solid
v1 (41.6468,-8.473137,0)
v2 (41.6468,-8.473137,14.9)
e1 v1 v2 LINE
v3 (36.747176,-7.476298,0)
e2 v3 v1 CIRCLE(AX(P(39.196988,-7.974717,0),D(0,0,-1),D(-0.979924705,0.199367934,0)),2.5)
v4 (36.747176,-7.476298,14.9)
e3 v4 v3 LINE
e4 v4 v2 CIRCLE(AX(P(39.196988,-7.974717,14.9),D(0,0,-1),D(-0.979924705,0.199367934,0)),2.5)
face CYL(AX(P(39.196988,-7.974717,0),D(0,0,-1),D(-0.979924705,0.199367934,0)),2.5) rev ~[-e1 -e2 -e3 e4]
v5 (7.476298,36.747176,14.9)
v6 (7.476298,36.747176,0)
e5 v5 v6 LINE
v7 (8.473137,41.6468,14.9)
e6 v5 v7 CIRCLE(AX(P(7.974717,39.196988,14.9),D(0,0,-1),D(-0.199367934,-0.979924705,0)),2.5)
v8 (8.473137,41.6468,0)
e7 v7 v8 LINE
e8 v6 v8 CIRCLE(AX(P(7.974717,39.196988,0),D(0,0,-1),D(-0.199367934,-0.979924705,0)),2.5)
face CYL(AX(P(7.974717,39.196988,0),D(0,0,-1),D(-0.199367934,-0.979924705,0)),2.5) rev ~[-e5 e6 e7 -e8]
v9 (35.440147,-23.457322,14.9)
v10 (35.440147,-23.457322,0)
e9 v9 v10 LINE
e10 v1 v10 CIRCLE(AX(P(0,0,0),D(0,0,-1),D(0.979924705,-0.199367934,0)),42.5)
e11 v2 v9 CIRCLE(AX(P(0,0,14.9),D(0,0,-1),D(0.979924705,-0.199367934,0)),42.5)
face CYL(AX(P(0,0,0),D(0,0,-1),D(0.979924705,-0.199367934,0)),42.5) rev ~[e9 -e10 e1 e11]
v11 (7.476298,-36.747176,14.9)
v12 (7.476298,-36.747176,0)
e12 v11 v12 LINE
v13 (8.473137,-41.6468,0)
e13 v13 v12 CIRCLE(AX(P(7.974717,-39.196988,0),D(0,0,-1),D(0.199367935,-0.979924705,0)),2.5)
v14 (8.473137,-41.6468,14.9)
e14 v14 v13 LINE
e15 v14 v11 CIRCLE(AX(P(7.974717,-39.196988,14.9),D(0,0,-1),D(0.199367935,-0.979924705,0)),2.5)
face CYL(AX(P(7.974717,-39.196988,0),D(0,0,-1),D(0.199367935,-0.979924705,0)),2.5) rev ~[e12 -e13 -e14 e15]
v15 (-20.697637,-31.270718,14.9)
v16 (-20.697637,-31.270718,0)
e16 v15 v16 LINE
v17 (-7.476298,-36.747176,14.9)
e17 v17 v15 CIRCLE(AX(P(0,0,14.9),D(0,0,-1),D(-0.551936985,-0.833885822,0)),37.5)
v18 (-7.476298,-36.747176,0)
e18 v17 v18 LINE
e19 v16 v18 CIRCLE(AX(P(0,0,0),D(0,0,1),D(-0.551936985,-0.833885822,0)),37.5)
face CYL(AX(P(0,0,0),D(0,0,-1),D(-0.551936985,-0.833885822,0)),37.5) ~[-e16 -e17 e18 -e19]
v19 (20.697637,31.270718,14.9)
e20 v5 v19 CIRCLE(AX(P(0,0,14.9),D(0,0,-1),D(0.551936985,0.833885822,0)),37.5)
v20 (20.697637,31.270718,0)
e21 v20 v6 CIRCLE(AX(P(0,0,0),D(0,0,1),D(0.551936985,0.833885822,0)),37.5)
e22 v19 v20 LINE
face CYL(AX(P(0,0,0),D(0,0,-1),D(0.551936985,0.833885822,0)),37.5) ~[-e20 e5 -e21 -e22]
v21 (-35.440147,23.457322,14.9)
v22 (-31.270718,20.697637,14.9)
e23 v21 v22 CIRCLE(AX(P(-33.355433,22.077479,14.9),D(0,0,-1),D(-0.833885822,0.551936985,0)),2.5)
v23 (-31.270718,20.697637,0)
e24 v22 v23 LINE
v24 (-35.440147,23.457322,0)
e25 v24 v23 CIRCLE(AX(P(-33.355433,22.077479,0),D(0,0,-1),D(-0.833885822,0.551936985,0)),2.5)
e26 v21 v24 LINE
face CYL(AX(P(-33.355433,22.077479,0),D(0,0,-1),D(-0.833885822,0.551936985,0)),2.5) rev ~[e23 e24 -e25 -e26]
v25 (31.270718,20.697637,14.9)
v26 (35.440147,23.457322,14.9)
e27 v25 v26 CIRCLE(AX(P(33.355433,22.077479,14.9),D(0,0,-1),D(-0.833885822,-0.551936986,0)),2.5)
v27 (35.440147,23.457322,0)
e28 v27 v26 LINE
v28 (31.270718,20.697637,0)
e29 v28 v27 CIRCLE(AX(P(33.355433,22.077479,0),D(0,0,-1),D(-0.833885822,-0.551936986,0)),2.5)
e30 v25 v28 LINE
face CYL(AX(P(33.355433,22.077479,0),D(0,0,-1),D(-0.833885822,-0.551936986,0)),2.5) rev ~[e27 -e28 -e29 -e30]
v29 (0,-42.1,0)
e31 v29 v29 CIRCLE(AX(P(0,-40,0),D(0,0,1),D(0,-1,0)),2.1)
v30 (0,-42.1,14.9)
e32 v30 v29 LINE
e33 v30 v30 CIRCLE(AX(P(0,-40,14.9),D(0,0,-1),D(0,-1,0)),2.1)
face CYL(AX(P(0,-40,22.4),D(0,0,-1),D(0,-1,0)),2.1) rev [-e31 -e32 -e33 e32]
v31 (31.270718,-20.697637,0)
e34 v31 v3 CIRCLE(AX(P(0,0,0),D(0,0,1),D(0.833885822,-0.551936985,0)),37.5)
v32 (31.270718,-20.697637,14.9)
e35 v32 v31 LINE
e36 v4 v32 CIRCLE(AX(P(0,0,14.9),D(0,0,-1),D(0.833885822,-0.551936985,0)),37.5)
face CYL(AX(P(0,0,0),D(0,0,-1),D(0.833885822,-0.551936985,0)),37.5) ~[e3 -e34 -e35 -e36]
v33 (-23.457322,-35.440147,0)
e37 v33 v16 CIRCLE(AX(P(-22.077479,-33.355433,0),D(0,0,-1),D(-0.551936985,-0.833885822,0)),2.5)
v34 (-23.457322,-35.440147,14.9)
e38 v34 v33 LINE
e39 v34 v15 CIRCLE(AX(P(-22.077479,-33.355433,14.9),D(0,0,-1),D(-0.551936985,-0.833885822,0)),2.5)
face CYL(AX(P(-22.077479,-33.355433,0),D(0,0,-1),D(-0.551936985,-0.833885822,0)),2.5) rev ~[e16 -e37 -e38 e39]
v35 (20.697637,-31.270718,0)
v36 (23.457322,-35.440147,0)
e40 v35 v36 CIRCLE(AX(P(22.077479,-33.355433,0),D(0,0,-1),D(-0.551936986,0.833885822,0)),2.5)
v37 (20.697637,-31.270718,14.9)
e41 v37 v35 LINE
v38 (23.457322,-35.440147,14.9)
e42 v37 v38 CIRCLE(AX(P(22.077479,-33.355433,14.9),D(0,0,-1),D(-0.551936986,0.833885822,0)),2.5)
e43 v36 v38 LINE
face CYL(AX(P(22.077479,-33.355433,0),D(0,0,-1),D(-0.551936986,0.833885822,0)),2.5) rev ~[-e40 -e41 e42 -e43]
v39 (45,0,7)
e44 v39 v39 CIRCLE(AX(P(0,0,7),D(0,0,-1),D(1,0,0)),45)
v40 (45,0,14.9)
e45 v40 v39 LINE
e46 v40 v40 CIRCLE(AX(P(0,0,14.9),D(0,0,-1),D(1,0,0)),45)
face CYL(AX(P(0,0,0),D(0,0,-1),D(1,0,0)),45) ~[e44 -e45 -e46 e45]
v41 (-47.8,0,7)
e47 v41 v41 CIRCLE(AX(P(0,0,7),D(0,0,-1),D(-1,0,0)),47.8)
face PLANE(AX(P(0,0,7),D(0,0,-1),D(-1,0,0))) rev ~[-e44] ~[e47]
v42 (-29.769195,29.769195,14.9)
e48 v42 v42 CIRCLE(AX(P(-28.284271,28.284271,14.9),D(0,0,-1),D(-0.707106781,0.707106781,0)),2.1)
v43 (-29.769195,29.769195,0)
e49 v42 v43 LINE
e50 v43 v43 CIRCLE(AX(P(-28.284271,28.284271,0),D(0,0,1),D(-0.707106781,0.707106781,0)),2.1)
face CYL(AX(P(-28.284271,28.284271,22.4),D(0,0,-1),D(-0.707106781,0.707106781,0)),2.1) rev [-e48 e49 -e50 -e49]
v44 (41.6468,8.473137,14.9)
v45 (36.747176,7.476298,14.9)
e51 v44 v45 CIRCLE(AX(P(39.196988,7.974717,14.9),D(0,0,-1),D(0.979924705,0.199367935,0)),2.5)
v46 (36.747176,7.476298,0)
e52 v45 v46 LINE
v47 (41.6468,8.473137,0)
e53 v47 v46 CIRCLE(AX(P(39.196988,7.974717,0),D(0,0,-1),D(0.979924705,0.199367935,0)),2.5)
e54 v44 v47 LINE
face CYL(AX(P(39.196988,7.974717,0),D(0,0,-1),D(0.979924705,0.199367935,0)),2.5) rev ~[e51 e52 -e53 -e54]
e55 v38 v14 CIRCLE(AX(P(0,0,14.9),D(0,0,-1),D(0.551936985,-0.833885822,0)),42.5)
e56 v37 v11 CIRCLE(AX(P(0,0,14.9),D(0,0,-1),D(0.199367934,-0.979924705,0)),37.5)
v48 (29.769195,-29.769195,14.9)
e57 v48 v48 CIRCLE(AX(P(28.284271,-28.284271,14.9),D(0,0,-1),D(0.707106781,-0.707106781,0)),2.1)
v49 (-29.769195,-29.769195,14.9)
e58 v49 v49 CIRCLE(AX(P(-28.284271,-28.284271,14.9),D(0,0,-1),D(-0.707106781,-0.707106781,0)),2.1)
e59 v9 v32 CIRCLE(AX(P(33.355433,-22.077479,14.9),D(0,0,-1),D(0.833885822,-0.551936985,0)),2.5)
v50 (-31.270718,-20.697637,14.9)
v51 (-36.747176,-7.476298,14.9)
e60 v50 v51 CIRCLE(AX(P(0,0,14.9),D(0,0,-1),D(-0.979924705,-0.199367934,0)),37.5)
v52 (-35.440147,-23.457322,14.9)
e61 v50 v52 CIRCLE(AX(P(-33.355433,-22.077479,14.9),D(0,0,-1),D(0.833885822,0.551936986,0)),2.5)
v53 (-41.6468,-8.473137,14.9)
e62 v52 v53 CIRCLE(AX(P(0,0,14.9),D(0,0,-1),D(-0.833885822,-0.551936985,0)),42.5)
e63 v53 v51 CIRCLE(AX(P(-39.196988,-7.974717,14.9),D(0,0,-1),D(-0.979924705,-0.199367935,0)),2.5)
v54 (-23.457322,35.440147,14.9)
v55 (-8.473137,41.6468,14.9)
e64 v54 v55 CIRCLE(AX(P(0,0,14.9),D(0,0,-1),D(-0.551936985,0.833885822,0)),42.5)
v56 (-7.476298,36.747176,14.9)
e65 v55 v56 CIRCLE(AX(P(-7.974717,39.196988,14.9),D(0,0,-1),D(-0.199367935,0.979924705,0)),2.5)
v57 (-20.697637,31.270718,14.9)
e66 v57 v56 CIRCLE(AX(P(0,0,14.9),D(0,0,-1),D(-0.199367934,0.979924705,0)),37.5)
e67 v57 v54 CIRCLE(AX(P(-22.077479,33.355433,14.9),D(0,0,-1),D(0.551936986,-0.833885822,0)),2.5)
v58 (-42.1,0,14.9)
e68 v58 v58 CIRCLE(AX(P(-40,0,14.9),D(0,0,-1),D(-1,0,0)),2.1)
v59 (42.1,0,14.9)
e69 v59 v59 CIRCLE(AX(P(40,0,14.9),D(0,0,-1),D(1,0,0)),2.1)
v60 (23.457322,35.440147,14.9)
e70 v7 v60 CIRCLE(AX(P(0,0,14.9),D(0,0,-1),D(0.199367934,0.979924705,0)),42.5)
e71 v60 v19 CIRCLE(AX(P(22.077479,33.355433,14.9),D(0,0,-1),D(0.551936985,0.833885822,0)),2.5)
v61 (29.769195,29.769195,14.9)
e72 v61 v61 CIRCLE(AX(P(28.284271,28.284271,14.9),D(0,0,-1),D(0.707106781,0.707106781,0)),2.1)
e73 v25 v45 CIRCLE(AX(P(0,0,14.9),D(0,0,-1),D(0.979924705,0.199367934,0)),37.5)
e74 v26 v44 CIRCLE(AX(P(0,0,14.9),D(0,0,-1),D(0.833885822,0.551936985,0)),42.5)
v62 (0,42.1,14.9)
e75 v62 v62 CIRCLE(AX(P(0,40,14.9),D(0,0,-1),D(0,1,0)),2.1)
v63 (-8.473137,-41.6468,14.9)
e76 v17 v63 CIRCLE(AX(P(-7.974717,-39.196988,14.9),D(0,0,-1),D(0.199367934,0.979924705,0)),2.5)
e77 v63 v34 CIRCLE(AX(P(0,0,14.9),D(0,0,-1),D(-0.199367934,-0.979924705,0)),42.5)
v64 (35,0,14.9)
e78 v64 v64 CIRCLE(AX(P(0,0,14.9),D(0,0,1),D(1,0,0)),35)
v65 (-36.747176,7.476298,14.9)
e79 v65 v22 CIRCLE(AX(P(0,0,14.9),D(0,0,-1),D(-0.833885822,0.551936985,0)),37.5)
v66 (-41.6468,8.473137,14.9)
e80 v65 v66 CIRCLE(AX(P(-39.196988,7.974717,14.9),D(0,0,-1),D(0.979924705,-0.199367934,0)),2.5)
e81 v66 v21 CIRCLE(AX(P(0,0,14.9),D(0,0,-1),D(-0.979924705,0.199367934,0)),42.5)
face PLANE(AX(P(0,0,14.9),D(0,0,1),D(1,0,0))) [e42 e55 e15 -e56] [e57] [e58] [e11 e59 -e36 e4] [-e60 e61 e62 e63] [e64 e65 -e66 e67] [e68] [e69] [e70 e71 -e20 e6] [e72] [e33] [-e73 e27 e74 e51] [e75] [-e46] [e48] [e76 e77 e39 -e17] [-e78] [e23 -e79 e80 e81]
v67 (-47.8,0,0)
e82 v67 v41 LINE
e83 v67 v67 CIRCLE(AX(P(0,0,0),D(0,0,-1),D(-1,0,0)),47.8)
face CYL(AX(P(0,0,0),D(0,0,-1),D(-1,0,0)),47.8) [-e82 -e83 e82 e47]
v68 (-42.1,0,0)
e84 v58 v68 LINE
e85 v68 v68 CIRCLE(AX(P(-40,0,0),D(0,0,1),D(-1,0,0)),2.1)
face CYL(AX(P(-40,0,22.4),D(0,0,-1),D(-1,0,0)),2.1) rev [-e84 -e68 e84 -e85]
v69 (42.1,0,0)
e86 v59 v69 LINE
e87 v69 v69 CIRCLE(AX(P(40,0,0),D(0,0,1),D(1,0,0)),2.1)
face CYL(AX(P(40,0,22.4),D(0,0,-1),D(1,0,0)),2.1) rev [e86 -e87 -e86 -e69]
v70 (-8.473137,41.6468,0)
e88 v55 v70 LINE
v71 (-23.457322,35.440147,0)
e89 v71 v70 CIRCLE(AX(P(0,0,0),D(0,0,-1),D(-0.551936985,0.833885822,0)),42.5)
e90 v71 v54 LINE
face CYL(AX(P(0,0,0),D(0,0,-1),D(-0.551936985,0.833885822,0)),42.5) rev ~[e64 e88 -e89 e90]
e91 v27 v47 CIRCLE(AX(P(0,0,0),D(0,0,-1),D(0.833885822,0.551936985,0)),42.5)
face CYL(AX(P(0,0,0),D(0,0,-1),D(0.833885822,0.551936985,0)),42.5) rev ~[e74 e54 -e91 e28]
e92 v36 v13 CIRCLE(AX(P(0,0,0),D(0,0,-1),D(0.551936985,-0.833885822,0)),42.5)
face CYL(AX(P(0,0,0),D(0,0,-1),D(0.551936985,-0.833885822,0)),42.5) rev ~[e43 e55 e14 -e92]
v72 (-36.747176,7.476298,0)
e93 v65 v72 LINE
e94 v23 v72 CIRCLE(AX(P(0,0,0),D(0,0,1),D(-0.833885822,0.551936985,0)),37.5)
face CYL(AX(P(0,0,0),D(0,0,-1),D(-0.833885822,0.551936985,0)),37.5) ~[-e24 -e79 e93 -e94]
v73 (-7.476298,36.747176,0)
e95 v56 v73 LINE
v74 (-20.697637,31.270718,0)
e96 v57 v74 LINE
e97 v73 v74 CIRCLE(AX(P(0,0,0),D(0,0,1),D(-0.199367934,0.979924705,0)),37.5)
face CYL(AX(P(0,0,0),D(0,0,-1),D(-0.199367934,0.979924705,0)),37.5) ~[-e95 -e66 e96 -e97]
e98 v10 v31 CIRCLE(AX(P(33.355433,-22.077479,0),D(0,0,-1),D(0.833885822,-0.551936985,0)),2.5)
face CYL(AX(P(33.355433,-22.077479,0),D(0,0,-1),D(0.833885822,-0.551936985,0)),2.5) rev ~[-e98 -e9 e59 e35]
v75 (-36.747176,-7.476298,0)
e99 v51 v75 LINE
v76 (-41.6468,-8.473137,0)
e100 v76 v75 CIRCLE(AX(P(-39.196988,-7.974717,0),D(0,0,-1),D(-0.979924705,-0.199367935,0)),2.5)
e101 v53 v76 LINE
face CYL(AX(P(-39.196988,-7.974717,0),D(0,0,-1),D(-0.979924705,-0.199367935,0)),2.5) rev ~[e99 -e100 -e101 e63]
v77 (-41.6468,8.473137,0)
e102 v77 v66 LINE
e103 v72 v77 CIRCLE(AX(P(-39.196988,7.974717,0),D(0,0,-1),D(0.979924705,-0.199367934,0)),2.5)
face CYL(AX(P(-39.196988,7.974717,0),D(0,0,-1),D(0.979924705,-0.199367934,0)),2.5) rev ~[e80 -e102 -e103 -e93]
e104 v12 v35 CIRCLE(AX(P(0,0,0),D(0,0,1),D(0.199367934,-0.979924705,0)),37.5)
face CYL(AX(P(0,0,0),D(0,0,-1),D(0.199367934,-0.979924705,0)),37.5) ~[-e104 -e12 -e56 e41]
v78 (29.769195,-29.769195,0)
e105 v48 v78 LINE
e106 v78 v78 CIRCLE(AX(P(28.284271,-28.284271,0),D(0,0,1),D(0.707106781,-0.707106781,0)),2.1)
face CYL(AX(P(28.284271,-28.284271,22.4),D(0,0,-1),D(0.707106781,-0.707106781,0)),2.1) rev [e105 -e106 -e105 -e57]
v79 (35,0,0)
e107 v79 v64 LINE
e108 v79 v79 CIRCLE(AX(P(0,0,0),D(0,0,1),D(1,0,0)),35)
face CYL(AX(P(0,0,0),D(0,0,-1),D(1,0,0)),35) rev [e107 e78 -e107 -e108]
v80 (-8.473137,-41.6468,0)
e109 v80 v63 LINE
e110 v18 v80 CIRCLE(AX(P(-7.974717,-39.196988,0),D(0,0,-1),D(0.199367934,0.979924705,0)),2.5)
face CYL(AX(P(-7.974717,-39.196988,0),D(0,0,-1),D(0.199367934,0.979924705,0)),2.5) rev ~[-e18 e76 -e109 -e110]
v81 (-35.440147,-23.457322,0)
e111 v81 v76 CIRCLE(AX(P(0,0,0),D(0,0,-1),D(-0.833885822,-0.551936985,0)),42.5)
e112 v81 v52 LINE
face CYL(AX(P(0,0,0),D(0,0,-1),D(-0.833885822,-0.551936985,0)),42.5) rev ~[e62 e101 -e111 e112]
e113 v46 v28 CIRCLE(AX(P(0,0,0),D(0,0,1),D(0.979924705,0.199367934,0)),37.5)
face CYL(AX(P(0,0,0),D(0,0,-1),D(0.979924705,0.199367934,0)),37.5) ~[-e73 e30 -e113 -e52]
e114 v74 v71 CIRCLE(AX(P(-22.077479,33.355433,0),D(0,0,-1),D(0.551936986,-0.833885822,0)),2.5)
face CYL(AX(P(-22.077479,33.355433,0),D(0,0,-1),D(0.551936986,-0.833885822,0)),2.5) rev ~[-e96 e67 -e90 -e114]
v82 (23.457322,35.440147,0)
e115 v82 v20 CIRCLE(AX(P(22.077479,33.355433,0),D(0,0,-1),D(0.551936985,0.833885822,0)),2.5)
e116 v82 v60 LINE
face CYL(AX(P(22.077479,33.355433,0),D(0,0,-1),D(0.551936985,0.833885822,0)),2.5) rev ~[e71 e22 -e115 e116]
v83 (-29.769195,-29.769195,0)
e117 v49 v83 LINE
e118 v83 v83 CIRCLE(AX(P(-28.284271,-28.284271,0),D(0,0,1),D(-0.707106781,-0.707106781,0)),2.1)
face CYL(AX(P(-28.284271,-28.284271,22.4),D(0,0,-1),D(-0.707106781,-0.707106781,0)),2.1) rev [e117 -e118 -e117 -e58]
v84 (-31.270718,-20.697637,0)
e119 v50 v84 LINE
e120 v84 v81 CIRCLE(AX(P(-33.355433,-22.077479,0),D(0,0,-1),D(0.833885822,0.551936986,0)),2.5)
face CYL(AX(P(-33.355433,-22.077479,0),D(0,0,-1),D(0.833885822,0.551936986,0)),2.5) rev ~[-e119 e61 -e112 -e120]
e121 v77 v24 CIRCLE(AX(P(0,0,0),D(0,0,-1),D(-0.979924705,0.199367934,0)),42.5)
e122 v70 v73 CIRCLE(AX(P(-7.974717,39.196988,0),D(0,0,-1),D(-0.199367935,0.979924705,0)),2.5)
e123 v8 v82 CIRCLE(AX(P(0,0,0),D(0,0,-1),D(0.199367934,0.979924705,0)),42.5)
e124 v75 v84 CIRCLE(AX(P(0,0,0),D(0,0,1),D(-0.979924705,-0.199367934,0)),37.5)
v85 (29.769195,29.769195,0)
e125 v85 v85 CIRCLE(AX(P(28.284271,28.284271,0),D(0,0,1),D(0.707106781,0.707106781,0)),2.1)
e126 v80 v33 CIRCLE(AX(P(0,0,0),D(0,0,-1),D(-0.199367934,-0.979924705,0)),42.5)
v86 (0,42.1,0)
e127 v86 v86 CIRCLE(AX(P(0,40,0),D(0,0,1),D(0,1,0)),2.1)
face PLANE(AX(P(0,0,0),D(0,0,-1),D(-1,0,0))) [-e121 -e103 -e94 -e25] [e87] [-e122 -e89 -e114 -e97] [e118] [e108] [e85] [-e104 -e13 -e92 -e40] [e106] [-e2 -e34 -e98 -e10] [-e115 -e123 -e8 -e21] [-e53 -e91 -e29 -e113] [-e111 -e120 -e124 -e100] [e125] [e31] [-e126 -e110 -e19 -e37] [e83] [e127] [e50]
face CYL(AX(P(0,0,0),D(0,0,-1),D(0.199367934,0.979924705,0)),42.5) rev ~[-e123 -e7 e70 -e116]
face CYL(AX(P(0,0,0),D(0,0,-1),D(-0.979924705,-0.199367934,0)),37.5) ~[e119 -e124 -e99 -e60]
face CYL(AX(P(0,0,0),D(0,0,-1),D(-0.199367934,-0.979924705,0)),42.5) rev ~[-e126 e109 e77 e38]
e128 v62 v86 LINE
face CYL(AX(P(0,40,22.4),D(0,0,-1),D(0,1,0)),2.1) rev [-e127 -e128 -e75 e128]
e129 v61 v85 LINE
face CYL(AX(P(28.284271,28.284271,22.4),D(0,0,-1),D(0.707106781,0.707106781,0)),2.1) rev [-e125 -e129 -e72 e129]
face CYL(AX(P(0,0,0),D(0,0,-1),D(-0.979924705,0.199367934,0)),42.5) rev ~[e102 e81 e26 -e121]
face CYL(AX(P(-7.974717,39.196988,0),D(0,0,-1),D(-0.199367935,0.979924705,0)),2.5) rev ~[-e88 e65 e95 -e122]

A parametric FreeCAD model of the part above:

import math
import FreeCAD as App
import Part
import Sketcher

V = App.Vector
Q = App.Units.Quantity


def add_polygon(sketch, points):
    """Adds a closed chain of lines whose ends are joined by coincident constraints."""
    first, n = sketch.GeometryCount, len(points)
    for a, b in zip(points, points[1:] + points[:1]):
        sketch.addGeometry(Part.LineSegment(App.Vector(*a, 0), App.Vector(*b, 0)), False)
    for i in range(n):
        sketch.addConstraint(Sketcher.Constraint("Coincident", first + i, 2, first + (i + 1) % n, 1))

doc = App.newDocument("Part")
params = doc.addObject("Spreadsheet::Sheet", "Params")
for row, (alias, value) in enumerate([
    ("sketch1_diameter", "90 mm"),
    ("sketch1_diameter2", "2 mm"),
    ("sketch1_diameter3", "70 mm"),
    ("pad1_length", "14.9 mm"),
    ("sketch2_diameter", "90 mm"),
    ("sketch2_diameter2", "95.6 mm"),
    ("pad2_length", "4 mm"),
    ("sketch3_width", "2.1 mm"),
    ("sketch3_height", "22.4 mm"),
    ("groove_angle", "360 deg"),
    ("sketch4_radius", "42.5 mm"),
    ("sketch4_radius2", "2.5 mm"),
    ("pocket1_length", "12 mm"),
    ("sketch5_diameter", "90 mm"),
    ("sketch5_diameter2", "95.6 mm"),
    ("pocket2_length", "10 mm"),
    ("sketch6_diameter", "90 mm"),
    ("sketch6_diameter2", "95.6 mm"),
    ("pad3_length", "7 mm"),
    ("sketch7_radius", "2.5 mm"),
    ("sketch7_radius2", "42.5 mm"),
    ("pocket3_length", "10 mm"),
], start=1):
    params.set(f"A{row}", alias)
    params.set(f"B{row}", "=" + value)
    params.setAlias(f"B{row}", alias)

body = doc.addObject("PartDesign::Body", "Body")

# Sketch on XY plane
sketch1 = doc.addObject("Sketcher::SketchObject", "Sketch")
body.addObject(sketch1)
sketch1.AttachmentSupport = (doc.XY_Plane, [""])
sketch1.MapMode = "FlatFace"
sketch1.addGeometry([
    Part.Circle(V(0, 0, 0), V(0, 0, 1), 45),  # 0
    Part.Circle(V(-28.3, -28.3, 0), V(0, 0, 1), 1),  # 1
    Part.Circle(V(0, -40, 0), V(0, 0, 1), 1),  # 2
    Part.Circle(V(28.3, -28.3, 0), V(0, 0, 1), 1),  # 3
    Part.Circle(V(-40, 0, 0), V(0, 0, 1), 1),  # 4
    Part.Circle(V(-28.3, 28.3, 0), V(0, 0, 1), 1),  # 5
    Part.Circle(V(0, 0, 0), V(0, 0, 1), 35),  # 6
    Part.Circle(V(40, 0, 0), V(0, 0, 1), 1),  # 7
    Part.Circle(V(0, 40, 0), V(0, 0, 1), 1),  # 8
    Part.Circle(V(28.3, 28.3, 0), V(0, 0, 1), 1),  # 9
], False)
sketch1.addConstraint([
    Sketcher.Constraint("Coincident", 0, 3, -1, 1),
    Sketcher.Constraint("Coincident", 6, 3, -1, 1),
    Sketcher.Constraint("Equal", 1, 2),
    Sketcher.Constraint("Equal", 2, 3),
    Sketcher.Constraint("Equal", 3, 4),
    Sketcher.Constraint("Equal", 4, 5),
    Sketcher.Constraint("Equal", 5, 7),
    Sketcher.Constraint("Equal", 7, 8),
    Sketcher.Constraint("Equal", 8, 9),
    Sketcher.Constraint("Symmetric", 3, 3, 5, 3, -1, 1),
    Sketcher.Constraint("Symmetric", 4, 3, 7, 3, -1, 1),
    Sketcher.Constraint("Symmetric", 2, 3, 8, 3, -1, 1),
    Sketcher.Constraint("Symmetric", 1, 3, 9, 3, -1, 1),
    Sketcher.Constraint("Symmetric", 1, 3, 3, 3, -2),
    Sketcher.Constraint("PointOnObject", 2, 3, -2),
    Sketcher.Constraint("PointOnObject", 4, 3, -1),
    Sketcher.Constraint("Diameter", 0, Q("90 mm")),
    Sketcher.Constraint("Diameter", 1, Q("2 mm")),
    Sketcher.Constraint("Diameter", 6, Q("70 mm")),
    Sketcher.Constraint("DistanceY", 2, 3, -1, 1, Q("40 mm")),
    Sketcher.Constraint("DistanceX", 4, 3, -1, 1, Q("40 mm")),
    Sketcher.Constraint("DistanceX", 1, 3, -1, 1, Q("28.284271 mm")),
    Sketcher.Constraint("DistanceY", 1, 3, -1, 1, Q("28.284271 mm")),
])
sketch1.setExpression("Constraints[16]", "Params.sketch1_diameter")
sketch1.setExpression("Constraints[17]", "Params.sketch1_diameter2")
sketch1.setExpression("Constraints[18]", "Params.sketch1_diameter3")
pad1 = doc.addObject("PartDesign::Pad", "Pad")
body.addObject(pad1)
pad1.Profile = sketch1
pad1.setExpression("Length", "Params.pad1_length")

# Sketch on XY plane
sketch2 = doc.addObject("Sketcher::SketchObject", "Sketch001")
body.addObject(sketch2)
sketch2.AttachmentSupport = (doc.XY_Plane, [""])
sketch2.MapMode = "FlatFace"
sketch2.AttachmentOffset = App.Placement(V(0, 0, 10.9), App.Rotation())
sketch2.addGeometry([
    Part.Circle(V(0, 0, 0), V(0, 0, 1), 48),
    Part.Circle(V(0, 0, 0), V(0, 0, 1), 45),
], False)
sketch2.addConstraint([
    Sketcher.Constraint("Coincident", 0, 3, -1, 1),
    Sketcher.Constraint("Coincident", 1, 3, -1, 1),
    Sketcher.Constraint("Diameter", 1, Q("90 mm")),
    Sketcher.Constraint("Diameter", 0, Q("95.6 mm")),
])
sketch2.setExpression("Constraints[2]", "Params.sketch2_diameter")
sketch2.setExpression("Constraints[3]", "Params.sketch2_diameter2")
pad2 = doc.addObject("PartDesign::Pad", "Pad001")
body.addObject(pad2)
pad2.Profile = sketch2
pad2.setExpression("Length", "Params.pad2_length")

# Sketch on YZ plane
sketch3 = doc.addObject("Sketcher::SketchObject", "Sketch002")
body.addObject(sketch3)
sketch3.AttachmentSupport = (doc.YZ_Plane, [""])
sketch3.MapMode = "FlatFace"
add_polygon(sketch3, [(40, 23.7), (40, 0), (42.1, 0), (42.1, 22.4)])  # lines 0-3
sketch3.addGeometry(Part.LineSegment(V(40, 0, 0), V(40, 23.7, 0)), True)  # axis
sketch3.addConstraint([
    Sketcher.Constraint("Vertical", 0),
    Sketcher.Constraint("Horizontal", 1),
    Sketcher.Constraint("Vertical", 2),
    Sketcher.Constraint("Vertical", 4),
    Sketcher.Constraint("Coincident", 4, 1, 0, 2),
    Sketcher.Constraint("PointOnObject", 0, 2, -1),
    Sketcher.Constraint("Equal", 0, 4),
    Sketcher.Constraint("Angle", 3, Q("149 deg")),
    Sketcher.Constraint("DistanceX", 1, 1, 1, 2, Q("2.1 mm")),
    Sketcher.Constraint("DistanceY", 2, 1, 2, 2, Q("22.4 mm")),
    Sketcher.Constraint("DistanceX", -1, 1, 0, 2, Q("40 mm")),
])
sketch3.setExpression("Constraints[12]", "Params.sketch3_width")
sketch3.setExpression("Constraints[13]", "Params.sketch3_height")
groove = doc.addObject("PartDesign::Groove", "Groove")
body.addObject(groove)
groove.Profile = sketch3
groove.ReferenceAxis = (sketch3, ["Axis0"])
groove.setExpression("Angle", "Params.groove_angle")
doc.recompute()

polarpattern = doc.addObject("PartDesign::PolarPattern", "PolarPattern")
body.addObject(polarpattern)
polarpattern.Originals = [groove]
polarpattern.Axis = (doc.Z_Axis, [""])
polarpattern.Angle = 360
polarpattern.Occurrences = 8
body.Tip = polarpattern

# Sketch on XY plane
sketch4 = doc.addObject("Sketcher::SketchObject", "Sketch003")
body.addObject(sketch4)
sketch4.AttachmentSupport = (doc.XY_Plane, [""])
sketch4.MapMode = "FlatFace"
sketch4.addGeometry([
    Part.ArcOfCircle(Part.Circle(V(0, 0, 0), V(0, 0, 1), 42.5), math.radians(56), math.radians(79)),  # 0
    Part.ArcOfCircle(Part.Circle(V(22.1, 33.4, 0), V(0, 0, 1), 2.5), math.radians(-124), math.radians(57)),  # 1
    Part.ArcOfCircle(Part.Circle(V(0, 0, 0), V(0, 0, 1), 37.5), math.radians(57), math.radians(78)),  # 2
    Part.ArcOfCircle(Part.Circle(V(8, 39.2, 0), V(0, 0, 1), 2.5), math.radians(78), math.radians(259)),  # 3
    Part.ArcOfCircle(Part.Circle(V(0, 0, 0), V(0, 0, 1), 42.5), math.radians(101), math.radians(124)),  # 4
    Part.ArcOfCircle(Part.Circle(V(-8, 39.2, 0), V(0, 0, 1), 2.5), math.radians(-79), math.radians(102)),  # 5
    Part.ArcOfCircle(Part.Circle(V(0, 0, 0), V(0, 0, 1), 37.5), math.radians(102), math.radians(123)),  # 6
    Part.ArcOfCircle(Part.Circle(V(-22.1, 33.4, 0), V(0, 0, 1), 2.5), math.radians(123), math.radians(304)),  # 7
    Part.ArcOfCircle(Part.Circle(V(0, 0, 0), V(0, 0, 1), 42.5), math.radians(146), math.radians(169)),  # 8
    Part.ArcOfCircle(Part.Circle(V(-33.4, 22.1, 0), V(0, 0, 1), 2.5), math.radians(-34), math.radians(147)),  # 9
    Part.ArcOfCircle(Part.Circle(V(0, 0, 0), V(0, 0, 1), 37.5), math.radians(147), math.radians(168)),  # 10
    Part.ArcOfCircle(Part.Circle(V(-39.2, 8, 0), V(0, 0, 1), 2.5), math.radians(168), math.radians(349)),  # 11
    Part.ArcOfCircle(Part.Circle(V(0, 0, 0), V(0, 0, 1), 42.5), math.radians(-169), math.radians(-146)),  # 12
    Part.ArcOfCircle(Part.Circle(V(-39.2, -8, 0), V(0, 0, 1), 2.5), math.radians(11), math.radians(192)),  # 13
    Part.ArcOfCircle(Part.Circle(V(0, 0, 0), V(0, 0, 1), 37.5), math.radians(-168), math.radians(-147)),  # 14
    Part.ArcOfCircle(Part.Circle(V(-33.4, -22.1, 0), V(0, 0, 1), 2.5), math.radians(-147), math.radians(34)),  # 15
    Part.ArcOfCircle(Part.Circle(V(0, 0, 0), V(0, 0, 1), 42.5), math.radians(-124), math.radians(-101)),  # 16
    Part.ArcOfCircle(Part.Circle(V(-22.1, -33.4, 0), V(0, 0, 1), 2.5), math.radians(56), math.radians(237)),  # 17
    Part.ArcOfCircle(Part.Circle(V(0, 0, 0), V(0, 0, 1), 37.5), math.radians(-123), math.radians(-102)),  # 18
    Part.ArcOfCircle(Part.Circle(V(-8, -39.2, 0), V(0, 0, 1), 2.5), math.radians(-102), math.radians(79)),  # 19
    Part.ArcOfCircle(Part.Circle(V(0, 0, 0), V(0, 0, 1), 42.5), math.radians(-79), math.radians(-56)),  # 20
    Part.ArcOfCircle(Part.Circle(V(8, -39.2, 0), V(0, 0, 1), 2.5), math.radians(101), math.radians(282)),  # 21
    Part.ArcOfCircle(Part.Circle(V(0, 0, 0), V(0, 0, 1), 37.5), math.radians(-78), math.radians(-57)),  # 22
    Part.ArcOfCircle(Part.Circle(V(22.1, -33.4, 0), V(0, 0, 1), 2.5), math.radians(-57), math.radians(124)),  # 23
    Part.ArcOfCircle(Part.Circle(V(0, 0, 0), V(0, 0, 1), 42.5), math.radians(-34), math.radians(-11)),  # 24
    Part.ArcOfCircle(Part.Circle(V(33.4, -22.1, 0), V(0, 0, 1), 2.5), math.radians(146), math.radians(327)),  # 25
    Part.ArcOfCircle(Part.Circle(V(0, 0, 0), V(0, 0, 1), 37.5), math.radians(-33), math.radians(-12)),  # 26
    Part.ArcOfCircle(Part.Circle(V(39.2, -8, 0), V(0, 0, 1), 2.5), math.radians(-12), math.radians(169)),  # 27
    Part.ArcOfCircle(Part.Circle(V(0, 0, 0), V(0, 0, 1), 42.5), math.radians(11), math.radians(34)),  # 28
    Part.ArcOfCircle(Part.Circle(V(39.2, 8, 0), V(0, 0, 1), 2.5), math.radians(-169), math.radians(12)),  # 29
    Part.ArcOfCircle(Part.Circle(V(0, 0, 0), V(0, 0, 1), 37.5), math.radians(12), math.radians(33)),  # 30
    Part.ArcOfCircle(Part.Circle(V(33.4, 22.1, 0), V(0, 0, 1), 2.5), math.radians(33), math.radians(214)),  # 31
], False)
sketch4.addConstraint([
    Sketcher.Constraint("Tangent", 0, 1, 1, 2),
    Sketcher.Constraint("Tangent", 1, 1, 2, 1),
    Sketcher.Constraint("Tangent", 2, 2, 3, 2),
    Sketcher.Constraint("Tangent", 3, 1, 0, 2),
    Sketcher.Constraint("Tangent", 4, 1, 5, 2),
    Sketcher.Constraint("Tangent", 5, 1, 6, 1),
    Sketcher.Constraint("Tangent", 6, 2, 7, 2),
    Sketcher.Constraint("Tangent", 7, 1, 4, 2),
    Sketcher.Constraint("Tangent", 8, 1, 9, 2),
    Sketcher.Constraint("Tangent", 9, 1, 10, 1),
    Sketcher.Constraint("Tangent", 10, 2, 11, 2),
    Sketcher.Constraint("Tangent", 11, 1, 8, 2),
    Sketcher.Constraint("Tangent", 12, 1, 13, 2),
    Sketcher.Constraint("Tangent", 13, 1, 14, 1),
    Sketcher.Constraint("Tangent", 14, 2, 15, 2),
    Sketcher.Constraint("Tangent", 15, 1, 12, 2),
    Sketcher.Constraint("Tangent", 16, 1, 17, 2),
    Sketcher.Constraint("Tangent", 17, 1, 18, 1),
    Sketcher.Constraint("Tangent", 18, 2, 19, 2),
    Sketcher.Constraint("Tangent", 19, 1, 16, 2),
    Sketcher.Constraint("Tangent", 20, 1, 21, 2),
    Sketcher.Constraint("Tangent", 21, 1, 22, 1),
    Sketcher.Constraint("Tangent", 22, 2, 23, 2),
    Sketcher.Constraint("Tangent", 23, 1, 20, 2),
    Sketcher.Constraint("Tangent", 24, 1, 25, 2),
    Sketcher.Constraint("Tangent", 25, 1, 26, 1),
    Sketcher.Constraint("Tangent", 26, 2, 27, 2),
    Sketcher.Constraint("Tangent", 27, 1, 24, 2),
    Sketcher.Constraint("Tangent", 28, 1, 29, 2),
    Sketcher.Constraint("Tangent", 29, 1, 30, 1),
    Sketcher.Constraint("Tangent", 30, 2, 31, 2),
    Sketcher.Constraint("Tangent", 31, 1, 28, 2),
    Sketcher.Constraint("Coincident", 0, 3, -1, 1),
    Sketcher.Constraint("Coincident", 2, 3, -1, 1),
    Sketcher.Constraint("Coincident", 4, 3, -1, 1),
    Sketcher.Constraint("Coincident", 6, 3, -1, 1),
    Sketcher.Constraint("Coincident", 8, 3, -1, 1),
    Sketcher.Constraint("Coincident", 10, 3, -1, 1),
    Sketcher.Constraint("Coincident", 12, 3, -1, 1),
    Sketcher.Constraint("Coincident", 14, 3, -1, 1),
    Sketcher.Constraint("Coincident", 16, 3, -1, 1),
    Sketcher.Constraint("Coincident", 18, 3, -1, 1),
    Sketcher.Constraint("Coincident", 20, 3, -1, 1),
    Sketcher.Constraint("Coincident", 22, 3, -1, 1),
    Sketcher.Constraint("Coincident", 24, 3, -1, 1),
    Sketcher.Constraint("Coincident", 26, 3, -1, 1),
    Sketcher.Constraint("Coincident", 28, 3, -1, 1),
    Sketcher.Constraint("Coincident", 30, 3, -1, 1),
    Sketcher.Constraint("Equal", 0, 4),
    Sketcher.Constraint("Equal", 3, 5),
    Sketcher.Constraint("Equal", 4, 8),
    Sketcher.Constraint("Equal", 7, 9),
    Sketcher.Constraint("Equal", 8, 12),
    Sketcher.Constraint("Equal", 11, 13),
    Sketcher.Constraint("Equal", 12, 16),
    Sketcher.Constraint("Equal", 15, 17),
    Sketcher.Constraint("Equal", 16, 20),
    Sketcher.Constraint("Equal", 19, 21),
    Sketcher.Constraint("Equal", 20, 24),
    Sketcher.Constraint("Equal", 23, 25),
    Sketcher.Constraint("Equal", 24, 28),
    Sketcher.Constraint("Equal", 27, 29),
    Sketcher.Constraint("Horizontal", 3, 3, 5, 3),
    Sketcher.Constraint("Horizontal", 1, 3, 7, 3),
    Sketcher.Constraint("Horizontal", 19, 3, 21, 3),
    Sketcher.Constraint("Horizontal", 17, 3, 23, 3),
    Sketcher.Constraint("Horizontal", 15, 3, 25, 3),
    Sketcher.Constraint("Horizontal", 13, 3, 27, 3),
    Sketcher.Constraint("Horizontal", 11, 3, 29, 3),
    Sketcher.Constraint("Horizontal", 9, 3, 31, 3),
    Sketcher.Constraint("Vertical", 11, 3, 13, 3),
    Sketcher.Constraint("Vertical", 9, 3, 15, 3),
    Sketcher.Constraint("Vertical", 7, 3, 17, 3),
    Sketcher.Constraint("Vertical", 5, 3, 19, 3),
    Sketcher.Constraint("Radius", 0, Q("42.5 mm")),
    Sketcher.Constraint("Radius", 1, Q("2.5 mm")),
    Sketcher.Constraint("DistanceY", -1, 1, 3, 1, Q("41.6468 mm")),
    Sketcher.Constraint("DistanceX", 11, 1, -1, 1, Q("41.6468 mm")),
    Sketcher.Constraint("DistanceX", -1, 1, 1, 3, Q("22.077479 mm")),
    Sketcher.Constraint("DistanceY", -1, 1, 9, 3, Q("22.077479 mm")),
])
sketch4.setExpression("Constraints[74]", "Params.sketch4_radius")
sketch4.setExpression("Constraints[75]", "Params.sketch4_radius2")
pocket1 = doc.addObject("PartDesign::Pocket", "Pocket")
body.addObject(pocket1)
pocket1.Profile = sketch4
pocket1.setExpression("Length", "Params.pocket1_length")
pocket1.Reversed = True

# Sketch on XY plane
sketch5 = doc.addObject("Sketcher::SketchObject", "Sketch004")
body.addObject(sketch5)
sketch5.AttachmentSupport = (doc.XY_Plane, [""])
sketch5.MapMode = "FlatFace"
sketch5.AttachmentOffset = App.Placement(V(0, 0, 10.9), App.Rotation())
sketch5.addGeometry([
    Part.Circle(V(0, 0, 0), V(0, 0, 1), 48),
    Part.Circle(V(0, 0, 0), V(0, 0, 1), 45),
], False)
sketch5.addConstraint([
    Sketcher.Constraint("Coincident", 0, 3, -1, 1),
    Sketcher.Constraint("Coincident", 1, 3, -1, 1),
    Sketcher.Constraint("Diameter", 1, Q("90 mm")),
    Sketcher.Constraint("Diameter", 0, Q("95.6 mm")),
])
sketch5.setExpression("Constraints[2]", "Params.sketch5_diameter")
sketch5.setExpression("Constraints[3]", "Params.sketch5_diameter2")
pocket2 = doc.addObject("PartDesign::Pocket", "Pocket001")
body.addObject(pocket2)
pocket2.Profile = sketch5
pocket2.setExpression("Length", "Params.pocket2_length")
pocket2.Reversed = True

# Sketch on XY plane
sketch6 = doc.addObject("Sketcher::SketchObject", "Sketch005")
body.addObject(sketch6)
sketch6.AttachmentSupport = (doc.XY_Plane, [""])
sketch6.MapMode = "FlatFace"
sketch6.addGeometry([
    Part.Circle(V(0, 0, 0), V(0, 0, 1), 48),
    Part.Circle(V(0, 0, 0), V(0, 0, 1), 45),
], False)
sketch6.addConstraint([
    Sketcher.Constraint("Coincident", 0, 3, -1, 1),
    Sketcher.Constraint("Coincident", 1, 3, -1, 1),
    Sketcher.Constraint("Diameter", 1, Q("90 mm")),
    Sketcher.Constraint("Diameter", 0, Q("95.6 mm")),
])
sketch6.setExpression("Constraints[2]", "Params.sketch6_diameter")
sketch6.setExpression("Constraints[3]", "Params.sketch6_diameter2")
pad3 = doc.addObject("PartDesign::Pad", "Pad002")
body.addObject(pad3)
pad3.Profile = sketch6
pad3.setExpression("Length", "Params.pad3_length")

# Sketch on XY plane
sketch7 = doc.addObject("Sketcher::SketchObject", "Sketch006")
body.addObject(sketch7)
sketch7.AttachmentSupport = (doc.XY_Plane, [""])
sketch7.MapMode = "FlatFace"
sketch7.AttachmentOffset = App.Placement(V(0, 0, 12), App.Rotation())
sketch7.addGeometry([
    Part.ArcOfCircle(Part.Circle(V(22.1, -33.4, 0), V(0, 0, 1), 2.5), math.radians(-57), math.radians(124)),  # 0
    Part.ArcOfCircle(Part.Circle(V(0, 0, 0), V(0, 0, 1), 42.5), math.radians(-79), math.radians(-56)),  # 1
    Part.ArcOfCircle(Part.Circle(V(8, -39.2, 0), V(0, 0, 1), 2.5), math.radians(101), math.radians(282)),  # 2
    Part.ArcOfCircle(Part.Circle(V(0, 0, 0), V(0, 0, 1), 37.5), math.radians(-78), math.radians(-57)),  # 3
    Part.ArcOfCircle(Part.Circle(V(-8, -39.2, 0), V(0, 0, 1), 2.5), math.radians(-102), math.radians(79)),  # 4
    Part.ArcOfCircle(Part.Circle(V(0, 0, 0), V(0, 0, 1), 42.5), math.radians(-124), math.radians(-101)),  # 5
    Part.ArcOfCircle(Part.Circle(V(-22.1, -33.4, 0), V(0, 0, 1), 2.5), math.radians(56), math.radians(237)),  # 6
    Part.ArcOfCircle(Part.Circle(V(0, 0, 0), V(0, 0, 1), 37.5), math.radians(-123), math.radians(-102)),  # 7
    Part.ArcOfCircle(Part.Circle(V(-33.4, -22.1, 0), V(0, 0, 1), 2.5), math.radians(-147), math.radians(34)),  # 8
    Part.ArcOfCircle(Part.Circle(V(0, 0, 0), V(0, 0, 1), 42.5), math.radians(-169), math.radians(-146)),  # 9
    Part.ArcOfCircle(Part.Circle(V(-39.2, -8, 0), V(0, 0, 1), 2.5), math.radians(11), math.radians(192)),  # 10
    Part.ArcOfCircle(Part.Circle(V(0, 0, 0), V(0, 0, 1), 37.5), math.radians(-168), math.radians(-147)),  # 11
    Part.ArcOfCircle(Part.Circle(V(-39.2, 8, 0), V(0, 0, 1), 2.5), math.radians(168), math.radians(349)),  # 12
    Part.ArcOfCircle(Part.Circle(V(0, 0, 0), V(0, 0, 1), 42.5), math.radians(146), math.radians(169)),  # 13
    Part.ArcOfCircle(Part.Circle(V(-33.4, 22.1, 0), V(0, 0, 1), 2.5), math.radians(-34), math.radians(147)),  # 14
    Part.ArcOfCircle(Part.Circle(V(0, 0, 0), V(0, 0, 1), 37.5), math.radians(147), math.radians(168)),  # 15
    Part.ArcOfCircle(Part.Circle(V(-22.1, 33.4, 0), V(0, 0, 1), 2.5), math.radians(123), math.radians(304)),  # 16
    Part.ArcOfCircle(Part.Circle(V(0, 0, 0), V(0, 0, 1), 42.5), math.radians(101), math.radians(124)),  # 17
    Part.ArcOfCircle(Part.Circle(V(-8, 39.2, 0), V(0, 0, 1), 2.5), math.radians(-79), math.radians(102)),  # 18
    Part.ArcOfCircle(Part.Circle(V(0, 0, 0), V(0, 0, 1), 37.5), math.radians(102), math.radians(123)),  # 19
    Part.ArcOfCircle(Part.Circle(V(8, 39.2, 0), V(0, 0, 1), 2.5), math.radians(78), math.radians(259)),  # 20
    Part.ArcOfCircle(Part.Circle(V(0, 0, 0), V(0, 0, 1), 42.5), math.radians(56), math.radians(79)),  # 21
    Part.ArcOfCircle(Part.Circle(V(22.1, 33.4, 0), V(0, 0, 1), 2.5), math.radians(-124), math.radians(57)),  # 22
    Part.ArcOfCircle(Part.Circle(V(0, 0, 0), V(0, 0, 1), 37.5), math.radians(57), math.radians(78)),  # 23
    Part.ArcOfCircle(Part.Circle(V(33.4, 22.1, 0), V(0, 0, 1), 2.5), math.radians(33), math.radians(214)),  # 24
    Part.ArcOfCircle(Part.Circle(V(0, 0, 0), V(0, 0, 1), 42.5), math.radians(11), math.radians(34)),  # 25
    Part.ArcOfCircle(Part.Circle(V(39.2, 8, 0), V(0, 0, 1), 2.5), math.radians(-169), math.radians(12)),  # 26
    Part.ArcOfCircle(Part.Circle(V(0, 0, 0), V(0, 0, 1), 37.5), math.radians(12), math.radians(33)),  # 27
    Part.ArcOfCircle(Part.Circle(V(39.2, -8, 0), V(0, 0, 1), 2.5), math.radians(-12), math.radians(169)),  # 28
    Part.ArcOfCircle(Part.Circle(V(0, 0, 0), V(0, 0, 1), 42.5), math.radians(-34), math.radians(-11)),  # 29
    Part.ArcOfCircle(Part.Circle(V(33.4, -22.1, 0), V(0, 0, 1), 2.5), math.radians(146), math.radians(327)),  # 30
    Part.ArcOfCircle(Part.Circle(V(0, 0, 0), V(0, 0, 1), 37.5), math.radians(-33), math.radians(-12)),  # 31
], False)
sketch7.addConstraint([
    Sketcher.Constraint("Tangent", 0, 1, 1, 2),
    Sketcher.Constraint("Tangent", 1, 1, 2, 2),
    Sketcher.Constraint("Tangent", 2, 1, 3, 1),
    Sketcher.Constraint("Tangent", 3, 2, 0, 2),
    Sketcher.Constraint("Tangent", 4, 1, 5, 2),
    Sketcher.Constraint("Tangent", 5, 1, 6, 2),
    Sketcher.Constraint("Tangent", 6, 1, 7, 1),
    Sketcher.Constraint("Tangent", 7, 2, 4, 2),
    Sketcher.Constraint("Tangent", 8, 1, 9, 2),
    Sketcher.Constraint("Tangent", 9, 1, 10, 2),
    Sketcher.Constraint("Tangent", 10, 1, 11, 1),
    Sketcher.Constraint("Tangent", 11, 2, 8, 2),
    Sketcher.Constraint("Tangent", 12, 1, 13, 2),
    Sketcher.Constraint("Tangent", 13, 1, 14, 2),
    Sketcher.Constraint("Tangent", 14, 1, 15, 1),
    Sketcher.Constraint("Tangent", 15, 2, 12, 2),
    Sketcher.Constraint("Tangent", 16, 1, 17, 2),
    Sketcher.Constraint("Tangent", 17, 1, 18, 2),
    Sketcher.Constraint("Tangent", 18, 1, 19, 1),
    Sketcher.Constraint("Tangent", 19, 2, 16, 2),
    Sketcher.Constraint("Tangent", 20, 1, 21, 2),
    Sketcher.Constraint("Tangent", 21, 1, 22, 2),
    Sketcher.Constraint("Tangent", 22, 1, 23, 1),
    Sketcher.Constraint("Tangent", 23, 2, 20, 2),
    Sketcher.Constraint("Tangent", 24, 1, 25, 2),
    Sketcher.Constraint("Tangent", 25, 1, 26, 2),
    Sketcher.Constraint("Tangent", 26, 1, 27, 1),
    Sketcher.Constraint("Tangent", 27, 2, 24, 2),
    Sketcher.Constraint("Tangent", 28, 1, 29, 2),
    Sketcher.Constraint("Tangent", 29, 1, 30, 2),
    Sketcher.Constraint("Tangent", 30, 1, 31, 1),
    Sketcher.Constraint("Tangent", 31, 2, 28, 2),
    Sketcher.Constraint("Coincident", 1, 3, -1, 1),
    Sketcher.Constraint("Coincident", 3, 3, -1, 1),
    Sketcher.Constraint("Coincident", 5, 3, -1, 1),
    Sketcher.Constraint("Coincident", 7, 3, -1, 1),
    Sketcher.Constraint("Coincident", 9, 3, -1, 1),
    Sketcher.Constraint("Coincident", 11, 3, -1, 1),
    Sketcher.Constraint("Coincident", 13, 3, -1, 1),
    Sketcher.Constraint("Coincident", 15, 3, -1, 1),
    Sketcher.Constraint("Coincident", 17, 3, -1, 1),
    Sketcher.Constraint("Coincident", 19, 3, -1, 1),
    Sketcher.Constraint("Coincident", 21, 3, -1, 1),
    Sketcher.Constraint("Coincident", 23, 3, -1, 1),
    Sketcher.Constraint("Coincident", 25, 3, -1, 1),
    Sketcher.Constraint("Coincident", 27, 3, -1, 1),
    Sketcher.Constraint("Coincident", 29, 3, -1, 1),
    Sketcher.Constraint("Coincident", 31, 3, -1, 1),
    Sketcher.Constraint("Equal", 2, 4),
    Sketcher.Constraint("Equal", 1, 5),
    Sketcher.Constraint("Equal", 6, 8),
    Sketcher.Constraint("Equal", 5, 9),
    Sketcher.Constraint("Equal", 10, 12),
    Sketcher.Constraint("Equal", 9, 13),
    Sketcher.Constraint("Equal", 14, 16),
    Sketcher.Constraint("Equal", 13, 17),
    Sketcher.Constraint("Equal", 18, 20),
    Sketcher.Constraint("Equal", 17, 21),
    Sketcher.Constraint("Equal", 22, 24),
    Sketcher.Constraint("Equal", 21, 25),
    Sketcher.Constraint("Equal", 26, 28),
    Sketcher.Constraint("Equal", 25, 29),
    Sketcher.Constraint("Horizontal", 2, 3, 4, 3),
    Sketcher.Constraint("Horizontal", 0, 3, 6, 3),
    Sketcher.Constraint("Horizontal", 18, 3, 20, 3),
    Sketcher.Constraint("Horizontal", 16, 3, 22, 3),
    Sketcher.Constraint("Horizontal", 14, 3, 24, 3),
    Sketcher.Constraint("Horizontal", 12, 3, 26, 3),
    Sketcher.Constraint("Horizontal", 10, 3, 28, 3),
    Sketcher.Constraint("Horizontal", 8, 3, 30, 3),
    Sketcher.Constraint("Vertical", 10, 3, 12, 3),
    Sketcher.Constraint("Vertical", 8, 3, 14, 3),
    Sketcher.Constraint("Vertical", 6, 3, 16, 3),
    Sketcher.Constraint("Vertical", 4, 3, 18, 3),
    Sketcher.Constraint("Radius", 0, Q("2.5 mm")),
    Sketcher.Constraint("Radius", 1, Q("42.5 mm")),
    Sketcher.Constraint("DistanceY", 1, 1, -1, 1, Q("41.6468 mm")),
    Sketcher.Constraint("DistanceX", 9, 1, -1, 1, Q("41.6468 mm")),
    Sketcher.Constraint("DistanceX", -1, 1, 0, 3, Q("22.077479 mm")),
    Sketcher.Constraint("DistanceY", 8, 3, -1, 1, Q("22.077479 mm")),
])
sketch7.setExpression("Constraints[74]", "Params.sketch7_radius")
sketch7.setExpression("Constraints[75]", "Params.sketch7_radius2")
pocket3 = doc.addObject("PartDesign::Pocket", "Pocket002")
body.addObject(pocket3)
pocket3.Profile = sketch7
pocket3.setExpression("Length", "Params.pocket3_length")
pocket3.Reversed = True

doc.recompute()
